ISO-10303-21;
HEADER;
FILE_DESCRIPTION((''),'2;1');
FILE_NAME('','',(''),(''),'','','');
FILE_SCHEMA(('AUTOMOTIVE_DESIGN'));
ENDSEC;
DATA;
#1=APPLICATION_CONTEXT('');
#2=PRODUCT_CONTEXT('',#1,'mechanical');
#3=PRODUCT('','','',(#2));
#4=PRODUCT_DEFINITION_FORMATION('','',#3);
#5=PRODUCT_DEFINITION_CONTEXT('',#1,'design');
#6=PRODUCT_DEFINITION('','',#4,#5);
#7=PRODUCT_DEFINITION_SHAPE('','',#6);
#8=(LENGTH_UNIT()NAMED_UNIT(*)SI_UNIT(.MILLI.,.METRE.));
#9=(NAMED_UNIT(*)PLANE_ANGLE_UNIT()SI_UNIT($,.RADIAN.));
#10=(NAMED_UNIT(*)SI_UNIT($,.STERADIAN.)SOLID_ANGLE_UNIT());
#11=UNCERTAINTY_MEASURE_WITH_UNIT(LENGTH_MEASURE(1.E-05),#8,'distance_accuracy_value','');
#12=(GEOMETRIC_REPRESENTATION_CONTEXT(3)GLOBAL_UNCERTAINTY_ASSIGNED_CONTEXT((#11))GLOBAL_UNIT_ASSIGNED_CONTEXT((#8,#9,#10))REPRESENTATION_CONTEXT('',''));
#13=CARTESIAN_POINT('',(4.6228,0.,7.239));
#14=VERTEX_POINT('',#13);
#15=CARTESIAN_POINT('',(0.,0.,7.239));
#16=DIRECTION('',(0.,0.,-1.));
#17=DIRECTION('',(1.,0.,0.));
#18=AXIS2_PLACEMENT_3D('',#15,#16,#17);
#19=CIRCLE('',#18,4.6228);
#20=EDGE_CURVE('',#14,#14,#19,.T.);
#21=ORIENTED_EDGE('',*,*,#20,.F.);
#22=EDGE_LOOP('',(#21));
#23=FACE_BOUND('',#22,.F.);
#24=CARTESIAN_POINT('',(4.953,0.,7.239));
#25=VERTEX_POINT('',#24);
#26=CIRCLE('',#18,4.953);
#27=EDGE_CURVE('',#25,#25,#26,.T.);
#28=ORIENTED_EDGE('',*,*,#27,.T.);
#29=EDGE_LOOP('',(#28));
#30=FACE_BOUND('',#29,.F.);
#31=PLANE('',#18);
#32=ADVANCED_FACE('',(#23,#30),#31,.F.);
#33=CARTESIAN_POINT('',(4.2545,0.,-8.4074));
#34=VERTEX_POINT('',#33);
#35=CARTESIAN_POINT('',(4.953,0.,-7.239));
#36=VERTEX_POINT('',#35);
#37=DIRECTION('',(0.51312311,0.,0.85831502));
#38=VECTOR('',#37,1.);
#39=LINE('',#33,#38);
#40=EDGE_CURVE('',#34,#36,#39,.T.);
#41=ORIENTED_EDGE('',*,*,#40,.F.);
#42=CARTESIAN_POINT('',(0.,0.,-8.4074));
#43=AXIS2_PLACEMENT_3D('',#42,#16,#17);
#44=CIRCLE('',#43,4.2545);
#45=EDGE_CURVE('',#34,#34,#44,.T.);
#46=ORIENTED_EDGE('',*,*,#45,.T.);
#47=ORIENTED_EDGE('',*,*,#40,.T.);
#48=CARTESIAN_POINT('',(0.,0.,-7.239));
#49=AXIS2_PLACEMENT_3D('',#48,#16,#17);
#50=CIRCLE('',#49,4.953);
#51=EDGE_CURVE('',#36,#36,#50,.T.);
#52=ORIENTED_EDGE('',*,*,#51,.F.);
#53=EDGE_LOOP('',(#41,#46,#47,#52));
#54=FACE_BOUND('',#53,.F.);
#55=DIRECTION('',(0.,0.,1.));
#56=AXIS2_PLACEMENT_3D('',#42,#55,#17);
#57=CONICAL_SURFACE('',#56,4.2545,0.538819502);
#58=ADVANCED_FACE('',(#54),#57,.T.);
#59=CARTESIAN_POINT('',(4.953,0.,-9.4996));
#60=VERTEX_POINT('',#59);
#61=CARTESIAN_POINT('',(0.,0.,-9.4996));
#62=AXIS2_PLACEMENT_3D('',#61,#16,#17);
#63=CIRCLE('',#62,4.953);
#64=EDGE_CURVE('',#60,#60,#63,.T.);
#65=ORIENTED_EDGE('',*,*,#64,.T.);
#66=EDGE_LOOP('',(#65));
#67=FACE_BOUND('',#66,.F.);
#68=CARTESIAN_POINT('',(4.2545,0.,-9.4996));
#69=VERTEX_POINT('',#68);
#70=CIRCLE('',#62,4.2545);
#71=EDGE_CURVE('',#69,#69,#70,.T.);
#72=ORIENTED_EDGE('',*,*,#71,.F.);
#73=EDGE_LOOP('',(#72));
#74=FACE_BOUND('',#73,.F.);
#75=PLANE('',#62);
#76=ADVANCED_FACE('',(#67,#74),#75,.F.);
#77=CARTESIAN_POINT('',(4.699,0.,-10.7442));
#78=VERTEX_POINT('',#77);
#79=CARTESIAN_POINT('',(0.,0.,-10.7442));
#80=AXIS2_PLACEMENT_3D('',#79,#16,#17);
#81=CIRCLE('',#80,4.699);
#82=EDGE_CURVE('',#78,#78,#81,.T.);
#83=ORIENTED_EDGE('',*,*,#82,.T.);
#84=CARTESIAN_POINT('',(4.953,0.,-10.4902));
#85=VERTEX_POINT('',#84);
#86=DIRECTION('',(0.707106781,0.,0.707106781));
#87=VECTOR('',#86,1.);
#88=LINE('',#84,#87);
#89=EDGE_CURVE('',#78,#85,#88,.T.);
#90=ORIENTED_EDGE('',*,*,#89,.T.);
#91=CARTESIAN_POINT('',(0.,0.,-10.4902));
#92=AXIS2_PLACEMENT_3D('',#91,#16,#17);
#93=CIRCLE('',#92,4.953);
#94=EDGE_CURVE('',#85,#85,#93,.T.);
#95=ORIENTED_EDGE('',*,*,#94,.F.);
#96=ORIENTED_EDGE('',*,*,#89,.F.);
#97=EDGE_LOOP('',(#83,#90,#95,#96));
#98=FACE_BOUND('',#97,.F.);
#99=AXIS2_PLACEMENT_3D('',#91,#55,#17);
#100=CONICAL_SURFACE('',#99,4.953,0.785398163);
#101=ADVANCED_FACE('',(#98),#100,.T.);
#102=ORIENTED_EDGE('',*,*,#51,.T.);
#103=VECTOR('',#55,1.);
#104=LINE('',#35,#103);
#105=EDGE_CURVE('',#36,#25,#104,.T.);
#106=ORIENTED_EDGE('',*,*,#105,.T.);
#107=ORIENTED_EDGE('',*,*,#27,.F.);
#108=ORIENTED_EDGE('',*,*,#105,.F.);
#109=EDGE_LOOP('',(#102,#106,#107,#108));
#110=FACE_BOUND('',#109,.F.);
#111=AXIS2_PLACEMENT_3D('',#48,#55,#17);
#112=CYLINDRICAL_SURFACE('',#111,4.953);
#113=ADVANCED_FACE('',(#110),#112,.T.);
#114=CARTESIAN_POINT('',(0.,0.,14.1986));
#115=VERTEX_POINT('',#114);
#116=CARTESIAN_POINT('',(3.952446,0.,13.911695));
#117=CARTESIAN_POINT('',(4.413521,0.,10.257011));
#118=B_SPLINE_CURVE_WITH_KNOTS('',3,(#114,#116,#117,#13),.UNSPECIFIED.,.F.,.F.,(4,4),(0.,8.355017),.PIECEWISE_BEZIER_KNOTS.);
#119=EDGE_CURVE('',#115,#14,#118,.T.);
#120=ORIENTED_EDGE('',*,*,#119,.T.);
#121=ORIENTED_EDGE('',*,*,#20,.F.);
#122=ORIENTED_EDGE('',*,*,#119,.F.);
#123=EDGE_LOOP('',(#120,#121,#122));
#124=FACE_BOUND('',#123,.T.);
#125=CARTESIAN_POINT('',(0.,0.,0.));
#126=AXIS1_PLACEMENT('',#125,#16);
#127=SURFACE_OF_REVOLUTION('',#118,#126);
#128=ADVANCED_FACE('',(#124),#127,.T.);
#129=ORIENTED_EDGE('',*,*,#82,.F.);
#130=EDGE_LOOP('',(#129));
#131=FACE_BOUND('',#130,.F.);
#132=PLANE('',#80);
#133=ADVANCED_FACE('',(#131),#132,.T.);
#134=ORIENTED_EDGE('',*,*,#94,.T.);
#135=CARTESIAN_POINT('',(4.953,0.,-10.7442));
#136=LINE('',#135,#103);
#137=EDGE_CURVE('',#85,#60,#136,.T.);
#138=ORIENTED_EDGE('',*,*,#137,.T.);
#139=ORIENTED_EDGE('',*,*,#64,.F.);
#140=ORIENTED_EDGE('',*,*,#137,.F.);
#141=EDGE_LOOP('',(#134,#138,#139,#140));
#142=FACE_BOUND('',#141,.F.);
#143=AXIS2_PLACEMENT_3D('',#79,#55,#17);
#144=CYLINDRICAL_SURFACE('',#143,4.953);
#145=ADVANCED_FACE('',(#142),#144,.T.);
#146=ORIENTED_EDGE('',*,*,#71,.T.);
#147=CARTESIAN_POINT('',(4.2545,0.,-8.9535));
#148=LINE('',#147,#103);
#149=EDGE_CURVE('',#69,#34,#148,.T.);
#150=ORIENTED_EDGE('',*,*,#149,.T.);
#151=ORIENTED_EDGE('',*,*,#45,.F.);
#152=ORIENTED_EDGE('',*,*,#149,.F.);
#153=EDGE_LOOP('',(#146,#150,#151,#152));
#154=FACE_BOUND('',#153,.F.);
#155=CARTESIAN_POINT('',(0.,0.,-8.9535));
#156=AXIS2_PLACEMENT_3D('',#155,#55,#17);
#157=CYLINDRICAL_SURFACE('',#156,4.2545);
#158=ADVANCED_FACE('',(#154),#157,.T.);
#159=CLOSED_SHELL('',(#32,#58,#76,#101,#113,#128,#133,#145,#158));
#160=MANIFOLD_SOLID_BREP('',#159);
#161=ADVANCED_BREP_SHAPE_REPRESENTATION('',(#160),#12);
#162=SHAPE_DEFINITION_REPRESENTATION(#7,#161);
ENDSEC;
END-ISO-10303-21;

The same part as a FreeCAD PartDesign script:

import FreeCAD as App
import Part
import Sketcher
from FreeCAD import Vector
Q = App.Units.Quantity


def edges_at(feature, points):
    """Names of the edges that pass closest to the given points."""
    edges = feature.Shape.Edges
    near = lambda p: min(range(len(edges)), key=lambda i: edges[i].distToShape(Part.Vertex(*p))[0])
    return sorted({f"Edge{near(p) + 1}" for p in points})

doc = App.newDocument("Part")
body = doc.addObject("PartDesign::Body", "Body")

# Sketch on XZ plane
sketch1 = doc.addObject("Sketcher::SketchObject", "Sketch")
body.addObject(sketch1)
sketch1.AttachmentSupport = (doc.XZ_Plane, [""])
sketch1.MapMode = "FlatFace"
sketch1.addGeometry(Part.LineSegment(Vector(0, 14.1986, 0), Vector(0, -10.7442, 0)), False)
sketch1.addGeometry(Part.LineSegment(Vector(0, -10.7442, 0), Vector(4.953, -10.7442, 0)), False)
sketch1.addGeometry(Part.LineSegment(Vector(4.953, -10.7442, 0), Vector(4.953, -9.4996, 0)), False)
sketch1.addGeometry(Part.LineSegment(Vector(4.953, -9.4996, 0), Vector(4.2545, -9.4996, 0)), False)
sketch1.addGeometry(Part.LineSegment(Vector(4.2545, -9.4996, 0), Vector(4.2545, -8.4074, 0)), False)
sketch1.addGeometry(Part.LineSegment(Vector(4.2545, -8.4074, 0), Vector(4.953, -7.239, 0)), False)
sketch1.addGeometry(Part.LineSegment(Vector(4.953, -7.239, 0), Vector(4.953, 7.239, 0)), False)
sketch1.addGeometry(Part.LineSegment(Vector(4.953, 7.239, 0), Vector(4.6228, 7.239, 0)), False)
sketch1.addGeometry(Part.BSplineCurve([Vector(0, 14.1986, 0), Vector(3.952446, 13.911695, 0), Vector(4.413521, 10.257011, 0), Vector(4.6228, 7.239, 0)], [4, 4], [0, 8.355017], False, 3, [1, 1, 1, 1], False), False)
sketch1.addConstraint(Sketcher.Constraint("Block", 8))
sketch1.addConstraint(Sketcher.Constraint("Coincident", 0, 2, 1, 1))
sketch1.addConstraint(Sketcher.Constraint("Coincident", 1, 2, 2, 1))
sketch1.addConstraint(Sketcher.Constraint("Coincident", 2, 2, 3, 1))
sketch1.addConstraint(Sketcher.Constraint("Coincident", 3, 2, 4, 1))
sketch1.addConstraint(Sketcher.Constraint("Coincident", 4, 2, 5, 1))
sketch1.addConstraint(Sketcher.Constraint("Coincident", 5, 2, 6, 1))
sketch1.addConstraint(Sketcher.Constraint("Coincident", 6, 2, 7, 1))
sketch1.addConstraint(Sketcher.Constraint("Coincident", 7, 2, 8, 2))
sketch1.addConstraint(Sketcher.Constraint("Coincident", 8, 1, 0, 1))
sketch1.addConstraint(Sketcher.Constraint("Vertical", 0))
sketch1.addConstraint(Sketcher.Constraint("Horizontal", 1))
sketch1.addConstraint(Sketcher.Constraint("Vertical", 2))
sketch1.addConstraint(Sketcher.Constraint("Horizontal", 3))
sketch1.addConstraint(Sketcher.Constraint("Vertical", 4))
sketch1.addConstraint(Sketcher.Constraint("Vertical", 6))
sketch1.addConstraint(Sketcher.Constraint("Horizontal", 7))
sketch1.addConstraint(Sketcher.Constraint("Vertical", 2, 2, 5, 2))
sketch1.addConstraint(Sketcher.Constraint("DistanceY", 6, 1, 6, 2, Q("0.57 in")))
sketch1.addConstraint(Sketcher.Constraint("DistanceX", 1, 1, 1, 2, Q("0.195 in")))
sketch1.addConstraint(Sketcher.Constraint("DistanceY", 0, 2, 0, 1, Q("0.982 in")))
sketch1.addConstraint(Sketcher.Constraint("DistanceY", 2, 1, 2, 2, Q("0.049 in")))
sketch1.addConstraint(Sketcher.Constraint("DistanceY", 4, 1, 4, 2, Q("0.043 in")))
sketch1.addConstraint(Sketcher.Constraint("DistanceX", 3, 2, 3, 1, Q("0.0275 in")))
revolution = doc.addObject("PartDesign::Revolution", "Revolution")
body.addObject(revolution)
revolution.Profile = sketch1
revolution.ReferenceAxis = (sketch1, ["V_Axis"])
revolution.Angle = 360
doc.recompute()

chamfer = doc.addObject("PartDesign::Chamfer", "Chamfer")
body.addObject(chamfer)
chamfer.Base = (revolution, edges_at(revolution, [(-4.953, 0, -10.744)]))
chamfer.Size = Q("0.01 in")

doc.recompute()
